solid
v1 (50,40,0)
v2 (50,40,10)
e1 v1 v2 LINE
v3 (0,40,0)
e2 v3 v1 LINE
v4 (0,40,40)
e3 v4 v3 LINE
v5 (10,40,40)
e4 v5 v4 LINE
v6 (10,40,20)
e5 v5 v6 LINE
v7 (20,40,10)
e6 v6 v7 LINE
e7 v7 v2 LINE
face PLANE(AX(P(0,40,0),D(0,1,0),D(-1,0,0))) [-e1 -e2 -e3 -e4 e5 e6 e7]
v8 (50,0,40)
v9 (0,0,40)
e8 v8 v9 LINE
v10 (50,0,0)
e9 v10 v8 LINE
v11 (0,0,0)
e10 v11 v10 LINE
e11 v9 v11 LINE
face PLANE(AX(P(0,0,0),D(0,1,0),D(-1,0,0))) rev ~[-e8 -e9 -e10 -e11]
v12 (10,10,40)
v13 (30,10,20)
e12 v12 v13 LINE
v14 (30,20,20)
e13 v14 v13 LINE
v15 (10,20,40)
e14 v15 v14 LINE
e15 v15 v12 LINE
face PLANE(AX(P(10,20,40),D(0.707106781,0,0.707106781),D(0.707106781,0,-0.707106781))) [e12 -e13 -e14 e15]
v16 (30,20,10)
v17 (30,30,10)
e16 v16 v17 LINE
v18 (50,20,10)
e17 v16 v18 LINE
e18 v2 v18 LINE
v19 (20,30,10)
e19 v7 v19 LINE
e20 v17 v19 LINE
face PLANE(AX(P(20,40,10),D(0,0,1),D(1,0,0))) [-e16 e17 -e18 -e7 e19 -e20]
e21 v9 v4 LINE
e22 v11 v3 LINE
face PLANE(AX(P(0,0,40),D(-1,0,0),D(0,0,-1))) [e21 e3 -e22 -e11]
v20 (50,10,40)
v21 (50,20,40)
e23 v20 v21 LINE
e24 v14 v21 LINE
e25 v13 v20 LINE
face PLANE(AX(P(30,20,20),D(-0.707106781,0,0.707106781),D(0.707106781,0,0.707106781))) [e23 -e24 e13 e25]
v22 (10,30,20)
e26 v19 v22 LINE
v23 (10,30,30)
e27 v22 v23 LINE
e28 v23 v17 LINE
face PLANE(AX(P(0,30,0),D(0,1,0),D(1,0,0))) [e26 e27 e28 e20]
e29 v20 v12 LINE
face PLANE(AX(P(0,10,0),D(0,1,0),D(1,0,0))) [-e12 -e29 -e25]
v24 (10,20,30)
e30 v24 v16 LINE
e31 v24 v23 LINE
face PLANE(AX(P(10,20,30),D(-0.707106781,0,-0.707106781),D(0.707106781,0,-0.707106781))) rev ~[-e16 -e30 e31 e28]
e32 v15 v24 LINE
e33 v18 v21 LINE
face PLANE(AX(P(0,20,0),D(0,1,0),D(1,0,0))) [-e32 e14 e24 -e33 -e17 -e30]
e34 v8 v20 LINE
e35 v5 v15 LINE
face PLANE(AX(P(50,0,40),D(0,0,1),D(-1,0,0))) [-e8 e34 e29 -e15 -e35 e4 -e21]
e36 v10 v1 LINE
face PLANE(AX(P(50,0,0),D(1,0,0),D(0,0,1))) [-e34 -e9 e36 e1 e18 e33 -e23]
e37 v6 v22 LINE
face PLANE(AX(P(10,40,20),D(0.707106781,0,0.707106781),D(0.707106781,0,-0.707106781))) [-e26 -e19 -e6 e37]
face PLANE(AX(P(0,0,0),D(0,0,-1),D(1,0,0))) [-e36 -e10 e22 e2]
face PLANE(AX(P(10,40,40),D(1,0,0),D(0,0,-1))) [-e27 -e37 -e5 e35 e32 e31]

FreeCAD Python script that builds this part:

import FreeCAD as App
import Part
import Sketcher
from FreeCAD import Vector


def add_polygon(sketch, points):
    """Adds a closed chain of lines whose ends are joined by coincident constraints."""
    first, n = sketch.GeometryCount, len(points)
    for a, b in zip(points, points[1:] + points[:1]):
        sketch.addGeometry(Part.LineSegment(App.Vector(*a, 0), App.Vector(*b, 0)), False)
    for i in range(n):
        sketch.addConstraint(Sketcher.Constraint("Coincident", first + i, 2, first + (i + 1) % n, 1))

doc = App.newDocument("Part")
params = doc.addObject("Spreadsheet::Sheet", "Params")
for row, (alias, value) in enumerate([
    ("sketch1_width", "50 mm"),
    ("sketch1_height", "40 mm"),
    ("pad1_length", "40 mm"),
    ("sketch2_width", "30 mm"),
    ("sketch2_height", "20 mm"),
    ("pocket1_length", "20 mm"),
    ("pocket2_length", "10 mm"),
    ("sketch4_width", "10 mm"),
    ("pad2_length", "10 mm"),
], start=1):
    params.set(f"A{row}", alias)
    params.set(f"B{row}", "=" + value)
    params.setAlias(f"B{row}", alias)

body = doc.addObject("PartDesign::Body", "Body")

sketch1 = doc.addObject("Sketcher::SketchObject", "Sketch")
body.addObject(sketch1)
sketch1.AttachmentSupport = (doc.XZ_Plane, [""])
sketch1.MapMode = "FlatFace"
add_polygon(sketch1, [(50, 0), (0, 0), (0, 40), (50, 40)])
sketch1.addConstraint([
    Sketcher.Constraint("Horizontal", 0),
    Sketcher.Constraint("Vertical", 1),
    Sketcher.Constraint("Horizontal", 2),
    Sketcher.Constraint("Vertical", 3),
    Sketcher.Constraint("Coincident", 0, 2, -1, 1),
    Sketcher.Constraint("DistanceX", 0, 2, 0, 1, 50.0),
    Sketcher.Constraint("DistanceY", 1, 1, 1, 2, 40.0),
])
sketch1.setExpression("Constraints[9]", "Params.sketch1_width")
sketch1.setExpression("Constraints[10]", "Params.sketch1_height")
pad1 = doc.addObject("PartDesign::Pad", "Pad")
body.addObject(pad1)
pad1.Profile = sketch1
pad1.setExpression("Length", "Params.pad1_length")
pad1.Reversed = True

sketch2 = doc.addObject("Sketcher::SketchObject", "Sketch001")
body.addObject(sketch2)
sketch2.AttachmentSupport = (doc.XZ_Plane, [""])
sketch2.MapMode = "FlatFace"
sketch2.AttachmentOffset = App.Placement(Vector(0, 0, -40), App.Rotation())
add_polygon(sketch2, [(50, 40), (50, 10), (20, 10), (10, 20), (10, 40)])
sketch2.addConstraint([
    Sketcher.Constraint("Vertical", 0),
    Sketcher.Constraint("Horizontal", 1),
    Sketcher.Constraint("Vertical", 3),
    Sketcher.Constraint("Horizontal", 4),
    Sketcher.Constraint("Equal", 1, 0),
    Sketcher.Constraint("DistanceX", 1, 2, 1, 1, 30.0),
    Sketcher.Constraint("DistanceY", 3, 1, 3, 2, 20.0),
    Sketcher.Constraint("DistanceY", -1, 1, 0, 2, 10.0),
    Sketcher.Constraint("DistanceX", -1, 1, 1, 2, 20.0),
    Sketcher.Constraint("DistanceX", -1, 1, 2, 2, 10.0),
])
sketch2.setExpression("Constraints[10]", "Params.sketch2_width")
sketch2.setExpression("Constraints[11]", "Params.sketch2_height")
pocket1 = doc.addObject("PartDesign::Pocket", "Pocket")
body.addObject(pocket1)
pocket1.Profile = sketch2
pocket1.setExpression("Length", "Params.pocket1_length")
pocket1.Reversed = True

sketch3 = doc.addObject("Sketcher::SketchObject", "Sketch002")
body.addObject(sketch3)
sketch3.AttachmentSupport = (doc.XZ_Plane, [""])
sketch3.MapMode = "FlatFace"
sketch3.AttachmentOffset = App.Placement(Vector(0, 0, -20), App.Rotation())
add_polygon(sketch3, [(10, 40), (50, 40), (30, 20)])
sketch3.addConstraint([
    Sketcher.Constraint("Horizontal", 0),
    Sketcher.Constraint("Perpendicular", 1, 2),
    Sketcher.Constraint("Equal", 1, 2),
    Sketcher.Constraint("DistanceY", -1, 1, 1, 2, 20.0),
    Sketcher.Constraint("DistanceX", 1, 2, 0, 2, 20.0),
    Sketcher.Constraint("DistanceX", -1, 1, 0, 2, 50.0),
])
pocket2 = doc.addObject("PartDesign::Pocket", "Pocket001")
body.addObject(pocket2)
pocket2.Profile = sketch3
pocket2.setExpression("Length", "Params.pocket2_length")
pocket2.Reversed = True

sketch4 = doc.addObject("Sketcher::SketchObject", "Sketch003")
body.addObject(sketch4)
sketch4.AttachmentSupport = (doc.XZ_Plane, [""])
sketch4.MapMode = "FlatFace"
sketch4.AttachmentOffset = App.Placement(Vector(0, 0, -20), App.Rotation())
add_polygon(sketch4, [(10, 30), (30, 10), (20, 10), (10, 20)])
sketch4.addConstraint([
    Sketcher.Constraint("Horizontal", 1),
    Sketcher.Constraint("Vertical", 3),
    Sketcher.Constraint("Parallel", 0, 2),
    Sketcher.Constraint("Equal", 1, 3),
    Sketcher.Constraint("DistanceX", 1, 2, 1, 1, 10.0),
    Sketcher.Constraint("DistanceY", -1, 1, 0, 2, 10.0),
    Sketcher.Constraint("DistanceX", -1, 1, 1, 2, 20.0),
    Sketcher.Constraint("DistanceX", -1, 1, 2, 2, 10.0),
])
sketch4.setExpression("Constraints[8]", "Params.sketch4_width")
pad2 = doc.addObject("PartDesign::Pad", "Pad001")
body.addObject(pad2)
pad2.Profile = sketch4
pad2.setExpression("Length", "Params.pad2_length")
pad2.Reversed = True

doc.recompute()
